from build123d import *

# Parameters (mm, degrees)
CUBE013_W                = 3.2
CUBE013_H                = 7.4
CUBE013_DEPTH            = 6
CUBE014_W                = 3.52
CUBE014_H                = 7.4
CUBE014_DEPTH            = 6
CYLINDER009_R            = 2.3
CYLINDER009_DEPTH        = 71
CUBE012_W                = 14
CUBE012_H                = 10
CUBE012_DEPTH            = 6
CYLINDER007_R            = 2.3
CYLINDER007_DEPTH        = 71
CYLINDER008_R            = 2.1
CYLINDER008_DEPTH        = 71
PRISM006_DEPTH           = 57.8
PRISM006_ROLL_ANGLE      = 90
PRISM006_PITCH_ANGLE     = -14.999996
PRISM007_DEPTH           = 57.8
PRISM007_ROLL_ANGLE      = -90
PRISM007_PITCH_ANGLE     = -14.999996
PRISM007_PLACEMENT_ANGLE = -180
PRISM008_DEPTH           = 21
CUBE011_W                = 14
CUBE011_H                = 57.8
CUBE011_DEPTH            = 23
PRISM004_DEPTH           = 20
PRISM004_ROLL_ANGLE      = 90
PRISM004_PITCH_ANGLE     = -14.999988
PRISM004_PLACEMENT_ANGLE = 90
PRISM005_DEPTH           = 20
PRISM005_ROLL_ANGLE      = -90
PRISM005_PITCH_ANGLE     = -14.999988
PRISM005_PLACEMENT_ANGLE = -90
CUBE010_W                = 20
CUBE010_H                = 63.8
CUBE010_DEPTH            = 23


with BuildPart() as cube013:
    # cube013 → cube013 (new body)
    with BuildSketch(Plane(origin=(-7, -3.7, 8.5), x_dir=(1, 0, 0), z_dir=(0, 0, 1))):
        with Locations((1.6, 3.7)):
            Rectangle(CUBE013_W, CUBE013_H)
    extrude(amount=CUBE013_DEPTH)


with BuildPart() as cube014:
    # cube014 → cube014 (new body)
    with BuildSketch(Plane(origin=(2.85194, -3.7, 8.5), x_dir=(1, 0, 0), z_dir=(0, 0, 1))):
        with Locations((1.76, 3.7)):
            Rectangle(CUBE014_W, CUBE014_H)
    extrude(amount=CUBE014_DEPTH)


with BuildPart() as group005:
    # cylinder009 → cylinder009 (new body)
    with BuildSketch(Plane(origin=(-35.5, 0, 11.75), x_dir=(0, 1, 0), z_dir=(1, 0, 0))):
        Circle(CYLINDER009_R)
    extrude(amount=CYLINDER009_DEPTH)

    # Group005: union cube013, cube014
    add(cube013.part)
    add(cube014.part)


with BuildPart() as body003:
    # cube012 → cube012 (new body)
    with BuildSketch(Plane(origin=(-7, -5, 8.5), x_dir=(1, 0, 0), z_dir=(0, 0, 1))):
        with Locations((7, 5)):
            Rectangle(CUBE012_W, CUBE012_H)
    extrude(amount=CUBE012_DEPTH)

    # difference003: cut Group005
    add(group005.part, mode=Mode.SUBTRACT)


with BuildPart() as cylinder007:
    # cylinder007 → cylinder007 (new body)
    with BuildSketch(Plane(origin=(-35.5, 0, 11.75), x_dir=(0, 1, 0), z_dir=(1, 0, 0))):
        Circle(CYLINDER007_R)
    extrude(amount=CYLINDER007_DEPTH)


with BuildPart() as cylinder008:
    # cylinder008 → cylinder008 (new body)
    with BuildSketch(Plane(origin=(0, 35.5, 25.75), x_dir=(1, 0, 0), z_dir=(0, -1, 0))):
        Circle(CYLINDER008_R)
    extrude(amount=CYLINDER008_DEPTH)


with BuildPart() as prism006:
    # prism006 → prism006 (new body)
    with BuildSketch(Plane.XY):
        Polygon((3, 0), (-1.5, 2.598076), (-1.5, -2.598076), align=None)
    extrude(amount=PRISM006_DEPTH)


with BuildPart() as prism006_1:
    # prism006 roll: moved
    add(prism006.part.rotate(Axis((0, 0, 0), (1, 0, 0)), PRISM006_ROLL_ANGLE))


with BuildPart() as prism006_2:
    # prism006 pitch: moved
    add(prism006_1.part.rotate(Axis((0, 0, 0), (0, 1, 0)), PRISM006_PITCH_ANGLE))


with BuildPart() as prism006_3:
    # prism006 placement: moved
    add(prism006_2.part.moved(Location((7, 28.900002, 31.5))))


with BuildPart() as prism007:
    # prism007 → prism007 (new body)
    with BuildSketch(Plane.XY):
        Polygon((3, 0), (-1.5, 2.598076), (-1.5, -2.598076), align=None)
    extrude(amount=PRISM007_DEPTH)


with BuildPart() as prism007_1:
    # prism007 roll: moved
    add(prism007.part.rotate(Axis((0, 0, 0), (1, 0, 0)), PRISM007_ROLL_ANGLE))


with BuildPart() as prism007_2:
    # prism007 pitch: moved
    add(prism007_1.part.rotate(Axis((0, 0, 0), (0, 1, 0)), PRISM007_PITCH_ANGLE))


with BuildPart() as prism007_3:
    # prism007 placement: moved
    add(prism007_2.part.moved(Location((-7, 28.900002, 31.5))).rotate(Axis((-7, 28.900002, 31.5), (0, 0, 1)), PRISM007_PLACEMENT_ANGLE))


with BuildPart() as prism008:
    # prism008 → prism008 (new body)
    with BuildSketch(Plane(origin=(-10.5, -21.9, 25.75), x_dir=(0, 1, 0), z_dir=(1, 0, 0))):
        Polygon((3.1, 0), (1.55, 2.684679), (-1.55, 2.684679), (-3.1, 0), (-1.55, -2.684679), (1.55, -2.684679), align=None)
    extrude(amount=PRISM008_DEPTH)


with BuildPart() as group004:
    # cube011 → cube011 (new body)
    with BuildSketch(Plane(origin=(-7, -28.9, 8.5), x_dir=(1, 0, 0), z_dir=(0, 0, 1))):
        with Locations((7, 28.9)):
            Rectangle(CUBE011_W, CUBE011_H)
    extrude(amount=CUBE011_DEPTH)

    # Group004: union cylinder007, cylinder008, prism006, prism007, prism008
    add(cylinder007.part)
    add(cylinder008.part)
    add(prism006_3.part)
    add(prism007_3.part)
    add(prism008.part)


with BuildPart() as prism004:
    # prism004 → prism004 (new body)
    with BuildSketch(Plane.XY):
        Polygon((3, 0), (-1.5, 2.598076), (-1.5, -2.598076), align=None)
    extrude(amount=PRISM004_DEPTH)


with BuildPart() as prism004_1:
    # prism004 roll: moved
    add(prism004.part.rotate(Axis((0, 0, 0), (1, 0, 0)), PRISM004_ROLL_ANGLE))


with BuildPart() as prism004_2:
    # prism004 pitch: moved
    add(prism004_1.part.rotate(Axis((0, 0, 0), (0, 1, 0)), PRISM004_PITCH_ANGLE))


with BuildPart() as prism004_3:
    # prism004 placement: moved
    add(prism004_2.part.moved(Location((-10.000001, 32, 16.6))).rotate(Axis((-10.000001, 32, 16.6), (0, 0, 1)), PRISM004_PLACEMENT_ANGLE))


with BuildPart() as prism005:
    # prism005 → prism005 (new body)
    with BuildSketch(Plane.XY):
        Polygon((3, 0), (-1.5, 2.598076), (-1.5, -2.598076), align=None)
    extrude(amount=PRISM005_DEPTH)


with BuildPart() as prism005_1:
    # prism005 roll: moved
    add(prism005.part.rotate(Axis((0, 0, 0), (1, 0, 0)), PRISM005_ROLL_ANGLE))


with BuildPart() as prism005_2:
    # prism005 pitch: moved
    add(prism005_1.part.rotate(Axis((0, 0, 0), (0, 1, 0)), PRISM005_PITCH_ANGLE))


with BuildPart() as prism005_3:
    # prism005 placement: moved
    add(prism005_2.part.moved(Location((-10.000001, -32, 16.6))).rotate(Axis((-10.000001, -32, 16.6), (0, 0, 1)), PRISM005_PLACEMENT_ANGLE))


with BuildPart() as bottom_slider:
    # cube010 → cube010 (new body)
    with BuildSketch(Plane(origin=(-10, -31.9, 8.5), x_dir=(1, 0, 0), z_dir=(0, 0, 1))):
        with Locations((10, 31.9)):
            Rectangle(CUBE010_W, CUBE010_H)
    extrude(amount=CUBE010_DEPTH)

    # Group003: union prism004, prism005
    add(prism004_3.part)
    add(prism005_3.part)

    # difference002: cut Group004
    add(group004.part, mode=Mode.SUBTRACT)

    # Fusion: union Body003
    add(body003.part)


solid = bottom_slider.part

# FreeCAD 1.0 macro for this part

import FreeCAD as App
import Part
import Sketcher

V = App.Vector
Q = App.Units.Quantity

doc = App.newDocument("Part")
body = doc.addObject("PartDesign::Body", "Body")

sketch1 = body.newObject("Sketcher::SketchObject", "Sketch")
sketch1.AttachmentSupport = (doc.getObject("XY_Plane"), [""])
sketch1.MapMode = "FlatFace"
sketch1.AttachmentOffset = App.Placement(V(0, 0, 8.5), App.Rotation())
sketch1.addGeometry(Part.LineSegment(V(-7, 3.7, 0), V(-7, -3.7, 0)), False)
sketch1.addGeometry(Part.LineSegment(V(-7, -3.7, 0), V(-3.8, -3.7, 0)), False)
sketch1.addGeometry(Part.LineSegment(V(-3.8, -3.7, 0), V(-3.8, 3.7, 0)), False)
sketch1.addGeometry(Part.LineSegment(V(-3.8, 3.7, 0), V(-7, 3.7, 0)), False)
sketch1.addConstraint(Sketcher.Constraint("Coincident", 0, 2, 1, 1))
sketch1.addConstraint(Sketcher.Constraint("Coincident", 1, 2, 2, 1))
sketch1.addConstraint(Sketcher.Constraint("Coincident", 2, 2, 3, 1))
sketch1.addConstraint(Sketcher.Constraint("Coincident", 3, 2, 0, 1))
sketch1.addConstraint(Sketcher.Constraint("Vertical", 0))
sketch1.addConstraint(Sketcher.Constraint("Horizontal", 1))
sketch1.addConstraint(Sketcher.Constraint("Vertical", 2))
sketch1.addConstraint(Sketcher.Constraint("Horizontal", 3))
sketch1.addConstraint(Sketcher.Constraint("DistanceX", 1, 1, 1, 2, Q("3.2 mm")))
sketch1.addConstraint(Sketcher.Constraint("DistanceY", 0, 2, 0, 1, Q("7.4 mm")))
sketch1.addConstraint(Sketcher.Constraint("DistanceX", 0, 2, -1, 1, Q("7 mm")))
sketch1.addConstraint(Sketcher.Constraint("DistanceY", 0, 2, -1, 1, Q("3.7 mm")))
pad1 = body.newObject("PartDesign::Pad", "Pad")
pad1.Profile = sketch1
pad1.Length = 6
body2 = doc.addObject("PartDesign::Body", "Body001")

sketch2 = body2.newObject("Sketcher::SketchObject", "Sketch001")
sketch2.AttachmentSupport = (doc.getObject("XY_Plane001"), [""])
sketch2.MapMode = "FlatFace"
sketch2.AttachmentOffset = App.Placement(V(0, 0, 8.5), App.Rotation())
sketch2.addGeometry(Part.LineSegment(V(2.85194, 3.7, 0), V(2.85194, -3.7, 0)), False)
sketch2.addGeometry(Part.LineSegment(V(2.85194, -3.7, 0), V(6.37194, -3.7, 0)), False)
sketch2.addGeometry(Part.LineSegment(V(6.37194, -3.7, 0), V(6.37194, 3.7, 0)), False)
sketch2.addGeometry(Part.LineSegment(V(6.37194, 3.7, 0), V(2.85194, 3.7, 0)), False)
sketch2.addConstraint(Sketcher.Constraint("Coincident", 0, 2, 1, 1))
sketch2.addConstraint(Sketcher.Constraint("Coincident", 1, 2, 2, 1))
sketch2.addConstraint(Sketcher.Constraint("Coincident", 2, 2, 3, 1))
sketch2.addConstraint(Sketcher.Constraint("Coincident", 3, 2, 0, 1))
sketch2.addConstraint(Sketcher.Constraint("Vertical", 0))
sketch2.addConstraint(Sketcher.Constraint("Horizontal", 1))
sketch2.addConstraint(Sketcher.Constraint("Vertical", 2))
sketch2.addConstraint(Sketcher.Constraint("Horizontal", 3))
sketch2.addConstraint(Sketcher.Constraint("DistanceY", 0, 2, 0, 1, Q("7.4 mm")))
sketch2.addConstraint(Sketcher.Constraint("DistanceX", 1, 1, 1, 2, Q("3.52 mm")))
sketch2.addConstraint(Sketcher.Constraint("DistanceY", 0, 2, -1, 1, Q("3.7 mm")))
sketch2.addConstraint(Sketcher.Constraint("DistanceX", -1, 1, 0, 2, Q("2.85194 mm")))
pad2 = body2.newObject("PartDesign::Pad", "Pad001")
pad2.Profile = sketch2
pad2.Length = 6
body3 = doc.addObject("PartDesign::Body", "Body002")

sketch3 = body3.newObject("Sketcher::SketchObject", "Sketch002")
sketch3.AttachmentSupport = (doc.getObject("YZ_Plane002"), [""])
sketch3.MapMode = "FlatFace"
sketch3.AttachmentOffset = App.Placement(V(0, 0, -35.5), App.Rotation())
sketch3.addGeometry(Part.Circle(V(0, 11.75, 0), V(0, 0, 1), 2.3), False)
sketch3.addConstraint(Sketcher.Constraint("PointOnObject", 0, 3, -2))
sketch3.addConstraint(Sketcher.Constraint("Diameter", 0, Q("4.6 mm")))
sketch3.addConstraint(Sketcher.Constraint("DistanceY", -1, 1, 0, 3, Q("11.75 mm")))
pad3 = body3.newObject("PartDesign::Pad", "Pad002")
pad3.Profile = sketch3
pad3.Length = 71
doc.recompute()

boolean = body3.newObject("PartDesign::Boolean", "Boolean")
boolean.Type = "Fuse"
boolean.addObjects([body])
doc.recompute()

boolean2 = body3.newObject("PartDesign::Boolean", "Boolean001")
boolean2.Type = "Fuse"
boolean2.addObjects([body2])
body4 = doc.addObject("PartDesign::Body", "Body003")

sketch4 = body4.newObject("Sketcher::SketchObject", "Sketch003")
sketch4.AttachmentSupport = (doc.getObject("XY_Plane003"), [""])
sketch4.MapMode = "FlatFace"
sketch4.AttachmentOffset = App.Placement(V(0, 0, 8.5), App.Rotation())
sketch4.addGeometry(Part.LineSegment(V(-7, 5, 0), V(-7, -5, 0)), False)
sketch4.addGeometry(Part.LineSegment(V(-7, -5, 0), V(7, -5, 0)), False)
sketch4.addGeometry(Part.LineSegment(V(7, -5, 0), V(7, 5, 0)), False)
sketch4.addGeometry(Part.LineSegment(V(7, 5, 0), V(-7, 5, 0)), False)
sketch4.addConstraint(Sketcher.Constraint("Coincident", 0, 2, 1, 1))
sketch4.addConstraint(Sketcher.Constraint("Coincident", 1, 2, 2, 1))
sketch4.addConstraint(Sketcher.Constraint("Coincident", 2, 2, 3, 1))
sketch4.addConstraint(Sketcher.Constraint("Coincident", 3, 2, 0, 1))
sketch4.addConstraint(Sketcher.Constraint("Vertical", 0))
sketch4.addConstraint(Sketcher.Constraint("Horizontal", 1))
sketch4.addConstraint(Sketcher.Constraint("Vertical", 2))
sketch4.addConstraint(Sketcher.Constraint("Horizontal", 3))
sketch4.addConstraint(Sketcher.Constraint("Symmetric", 0, 2, 2, 2, -1, 1))
sketch4.addConstraint(Sketcher.Constraint("DistanceX", 1, 1, 1, 2, Q("14 mm")))
sketch4.addConstraint(Sketcher.Constraint("DistanceY", 0, 2, 0, 1, Q("10 mm")))
pad4 = body4.newObject("PartDesign::Pad", "Pad003")
pad4.Profile = sketch4
pad4.Length = 6
doc.recompute()

boolean3 = body4.newObject("PartDesign::Boolean", "Boolean002")
boolean3.Type = "Cut"
boolean3.addObjects([body3])
body5 = doc.addObject("PartDesign::Body", "Body004")

sketch5 = body5.newObject("Sketcher::SketchObject", "Sketch004")
sketch5.AttachmentSupport = (doc.getObject("YZ_Plane004"), [""])
sketch5.MapMode = "FlatFace"
sketch5.AttachmentOffset = App.Placement(V(0, 0, -35.5), App.Rotation())
sketch5.addGeometry(Part.Circle(V(0, 11.75, 0), V(0, 0, 1), 2.3), False)
sketch5.addConstraint(Sketcher.Constraint("PointOnObject", 0, 3, -2))
sketch5.addConstraint(Sketcher.Constraint("Diameter", 0, Q("4.6 mm")))
sketch5.addConstraint(Sketcher.Constraint("DistanceY", -1, 1, 0, 3, Q("11.75 mm")))
pad5 = body5.newObject("PartDesign::Pad", "Pad004")
pad5.Profile = sketch5
pad5.Length = 71
body6 = doc.addObject("PartDesign::Body", "Body005")

sketch6 = body6.newObject("Sketcher::SketchObject", "Sketch005")
sketch6.AttachmentSupport = (doc.getObject("XZ_Plane005"), [""])
sketch6.MapMode = "FlatFace"
sketch6.AttachmentOffset = App.Placement(V(0, 0, -35.5), App.Rotation())
sketch6.addGeometry(Part.Circle(V(0, 25.75, 0), V(0, 0, 1), 2.1), False)
sketch6.addConstraint(Sketcher.Constraint("PointOnObject", 0, 3, -2))
sketch6.addConstraint(Sketcher.Constraint("Diameter", 0, Q("4.2 mm")))
sketch6.addConstraint(Sketcher.Constraint("DistanceY", -1, 1, 0, 3, Q("25.75 mm")))
pad6 = body6.newObject("PartDesign::Pad", "Pad005")
pad6.Profile = sketch6
pad6.Length = 71
body7 = doc.addObject("PartDesign::Body", "Body006")

sketch7 = body7.newObject("Sketcher::SketchObject", "Sketch006")
sketch7.AttachmentSupport = (doc.getObject("XY_Plane006"), [""])
sketch7.MapMode = "FlatFace"
sketch7.addGeometry(Part.LineSegment(V(3, 0, 0), V(-1.5, 2.598076, 0)), False)
sketch7.addGeometry(Part.LineSegment(V(-1.5, 2.598076, 0), V(-1.5, -2.598076, 0)), False)
sketch7.addGeometry(Part.LineSegment(V(-1.5, -2.598076, 0), V(3, 0, 0)), False)
sketch7.addConstraint(Sketcher.Constraint("Coincident", 0, 2, 1, 1))
sketch7.addConstraint(Sketcher.Constraint("Coincident", 1, 2, 2, 1))
sketch7.addConstraint(Sketcher.Constraint("Coincident", 2, 2, 0, 1))
sketch7.addConstraint(Sketcher.Constraint("Vertical", 1))
sketch7.addConstraint(Sketcher.Constraint("PointOnObject", 2, 2, -1))
sketch7.addConstraint(Sketcher.Constraint("Equal", 0, 2))
sketch7.addConstraint(Sketcher.Constraint("Angle", 0, Q("150.000002 deg")))
sketch7.addConstraint(Sketcher.Constraint("DistanceX", -1, 1, 2, 2, Q("3 mm")))
sketch7.addConstraint(Sketcher.Constraint("DistanceX", 0, 2, -1, 1, Q("1.5 mm")))
pad7 = body7.newObject("PartDesign::Pad", "Pad006")
pad7.Profile = sketch7
pad7.Length = 57.8
body8 = doc.addObject("PartDesign::Body", "Body007")
doc.recompute()

body7.Placement = App.Placement(V(0, 0, 0), App.Rotation(V(1, 0, 0), 90))
boolean4 = body8.newObject("PartDesign::Boolean", "Boolean003")
boolean4.Type = "Fuse"
boolean4.addObjects([body7])
body9 = doc.addObject("PartDesign::Body", "Body008")
doc.recompute()

body8.Placement = App.Placement(V(0, 0, 0), App.Rotation(V(0, 1, 0), 345.000004))
boolean5 = body9.newObject("PartDesign::Boolean", "Boolean004")
boolean5.Type = "Fuse"
boolean5.addObjects([body8])
body10 = doc.addObject("PartDesign::Body", "Body009")
doc.recompute()

body9.Placement = App.Placement(V(7, 28.900002, 31.5), App.Rotation(V(0, 0, 1), 0))
boolean6 = body10.newObject("PartDesign::Boolean", "Boolean005")
boolean6.Type = "Fuse"
boolean6.addObjects([body9])
body11 = doc.addObject("PartDesign::Body", "Body010")

sketch8 = body11.newObject("Sketcher::SketchObject", "Sketch007")
sketch8.AttachmentSupport = (doc.getObject("XY_Plane010"), [""])
sketch8.MapMode = "FlatFace"
sketch8.addGeometry(Part.LineSegment(V(3, 0, 0), V(-1.5, 2.598076, 0)), False)
sketch8.addGeometry(Part.LineSegment(V(-1.5, 2.598076, 0), V(-1.5, -2.598076, 0)), False)
sketch8.addGeometry(Part.LineSegment(V(-1.5, -2.598076, 0), V(3, 0, 0)), False)
sketch8.addConstraint(Sketcher.Constraint("Coincident", 0, 2, 1, 1))
sketch8.addConstraint(Sketcher.Constraint("Coincident", 1, 2, 2, 1))
sketch8.addConstraint(Sketcher.Constraint("Coincident", 2, 2, 0, 1))
sketch8.addConstraint(Sketcher.Constraint("Vertical", 1))
sketch8.addConstraint(Sketcher.Constraint("PointOnObject", 2, 2, -1))
sketch8.addConstraint(Sketcher.Constraint("Equal", 0, 2))
sketch8.addConstraint(Sketcher.Constraint("Angle", 0, Q("150.000002 deg")))
sketch8.addConstraint(Sketcher.Constraint("DistanceX", -1, 1, 2, 2, Q("3 mm")))
sketch8.addConstraint(Sketcher.Constraint("DistanceX", 0, 2, -1, 1, Q("1.5 mm")))
pad8 = body11.newObject("PartDesign::Pad", "Pad007")
pad8.Profile = sketch8
pad8.Length = 57.8
body12 = doc.addObject("PartDesign::Body", "Body011")
doc.recompute()

body11.Placement = App.Placement(V(0, 0, 0), App.Rotation(V(1, 0, 0), 270))
boolean7 = body12.newObject("PartDesign::Boolean", "Boolean006")
boolean7.Type = "Fuse"
boolean7.addObjects([body11])
body13 = doc.addObject("PartDesign::Body", "Body012")
doc.recompute()

body12.Placement = App.Placement(V(0, 0, 0), App.Rotation(V(0, 1, 0), 345.000004))
boolean8 = body13.newObject("PartDesign::Boolean", "Boolean007")
boolean8.Type = "Fuse"
boolean8.addObjects([body12])
body14 = doc.addObject("PartDesign::Body", "Body013")
doc.recompute()

body13.Placement = App.Placement(V(-7, 28.900002, 31.5), App.Rotation(V(0, 0, 1), 180))
boolean9 = body14.newObject("PartDesign::Boolean", "Boolean008")
boolean9.Type = "Fuse"
boolean9.addObjects([body13])
body15 = doc.addObject("PartDesign::Body", "Body014")

sketch9 = body15.newObject("Sketcher::SketchObject", "Sketch008")
sketch9.AttachmentSupport = (doc.getObject("YZ_Plane014"), [""])
sketch9.MapMode = "FlatFace"
sketch9.AttachmentOffset = App.Placement(V(0, 0, -10.5), App.Rotation())
sketch9.addGeometry(Part.LineSegment(V(-18.8, 25.75, 0), V(-20.35, 28.434679, 0)), False)
sketch9.addGeometry(Part.LineSegment(V(-20.35, 28.434679, 0), V(-23.45, 28.434679, 0)), False)
sketch9.addGeometry(Part.LineSegment(V(-23.45, 28.434679, 0), V(-25, 25.75, 0)), False)
sketch9.addGeometry(Part.LineSegment(V(-25, 25.75, 0), V(-23.45, 23.065321, 0)), False)
sketch9.addGeometry(Part.LineSegment(V(-23.45, 23.065321, 0), V(-20.35, 23.065321, 0)), False)
sketch9.addGeometry(Part.LineSegment(V(-20.35, 23.065321, 0), V(-18.8, 25.75, 0)), False)
sketch9.addConstraint(Sketcher.Constraint("Coincident", 0, 2, 1, 1))
sketch9.addConstraint(Sketcher.Constraint("Coincident", 1, 2, 2, 1))
sketch9.addConstraint(Sketcher.Constraint("Coincident", 2, 2, 3, 1))
sketch9.addConstraint(Sketcher.Constraint("Coincident", 3, 2, 4, 1))
sketch9.addConstraint(Sketcher.Constraint("Coincident", 4, 2, 5, 1))
sketch9.addConstraint(Sketcher.Constraint("Coincident", 5, 2, 0, 1))
sketch9.addConstraint(Sketcher.Constraint("Horizontal", 1))
sketch9.addConstraint(Sketcher.Constraint("Horizontal", 4))
sketch9.addConstraint(Sketcher.Constraint("Parallel", 0, 3))
sketch9.addConstraint(Sketcher.Constraint("Parallel", 2, 5))
sketch9.addConstraint(Sketcher.Constraint("Horizontal", 2, 2, 5, 2))
sketch9.addConstraint(Sketcher.Constraint("Vertical", 1, 2, 3, 2))
sketch9.addConstraint(Sketcher.Constraint("Vertical", 0, 2, 4, 2))
sketch9.addConstraint(Sketcher.Constraint("Angle", 0, Q("119.999998 deg")))
sketch9.addConstraint(Sketcher.Constraint("DistanceX", 1, 2, 1, 1, Q("3.1 mm")))
sketch9.addConstraint(Sketcher.Constraint("DistanceX", 2, 2, -1, 1, Q("25 mm")))
sketch9.addConstraint(Sketcher.Constraint("Distance", 0, Q("3.1 mm")))
sketch9.addConstraint(Sketcher.Constraint("DistanceY", -1, 1, 2, 2, Q("25.75 mm")))
pad9 = body15.newObject("PartDesign::Pad", "Pad008")
pad9.Profile = sketch9
pad9.Length = 21
body16 = doc.addObject("PartDesign::Body", "Body015")

sketch10 = body16.newObject("Sketcher::SketchObject", "Sketch009")
sketch10.AttachmentSupport = (doc.getObject("XY_Plane015"), [""])
sketch10.MapMode = "FlatFace"
sketch10.AttachmentOffset = App.Placement(V(0, 0, 8.5), App.Rotation())
sketch10.addGeometry(Part.LineSegment(V(-7, 28.9, 0), V(-7, -28.9, 0)), False)
sketch10.addGeometry(Part.LineSegment(V(-7, -28.9, 0), V(7, -28.9, 0)), False)
sketch10.addGeometry(Part.LineSegment(V(7, -28.9, 0), V(7, 28.9, 0)), False)
sketch10.addGeometry(Part.LineSegment(V(7, 28.9, 0), V(-7, 28.9, 0)), False)
sketch10.addConstraint(Sketcher.Constraint("Coincident", 0, 2, 1, 1))
sketch10.addConstraint(Sketcher.Constraint("Coincident", 1, 2, 2, 1))
sketch10.addConstraint(Sketcher.Constraint("Coincident", 2, 2, 3, 1))
sketch10.addConstraint(Sketcher.Constraint("Coincident", 3, 2, 0, 1))
sketch10.addConstraint(Sketcher.Constraint("Vertical", 0))
sketch10.addConstraint(Sketcher.Constraint("Horizontal", 1))
sketch10.addConstraint(Sketcher.Constraint("Vertical", 2))
sketch10.addConstraint(Sketcher.Constraint("Horizontal", 3))
sketch10.addConstraint(Sketcher.Constraint("Symmetric", 0, 2, 2, 2, -1, 1))
sketch10.addConstraint(Sketcher.Constraint("DistanceX", 1, 1, 1, 2, Q("14 mm")))
sketch10.addConstraint(Sketcher.Constraint("DistanceY", 0, 2, 0, 1, Q("57.8 mm")))
pad10 = body16.newObject("PartDesign::Pad", "Pad009")
pad10.Profile = sketch10
pad10.Length = 23
doc.recompute()

boolean10 = body16.newObject("PartDesign::Boolean", "Boolean009")
boolean10.Type = "Fuse"
boolean10.addObjects([body5])
doc.recompute()

boolean11 = body16.newObject("PartDesign::Boolean", "Boolean010")
boolean11.Type = "Fuse"
boolean11.addObjects([body6])
doc.recompute()

boolean12 = body16.newObject("PartDesign::Boolean", "Boolean011")
boolean12.Type = "Fuse"
boolean12.addObjects([body10])
doc.recompute()

boolean13 = body16.newObject("PartDesign::Boolean", "Boolean012")
boolean13.Type = "Fuse"
boolean13.addObjects([body14])
doc.recompute()

boolean14 = body16.newObject("PartDesign::Boolean", "Boolean013")
boolean14.Type = "Fuse"
boolean14.addObjects([body15])
body17 = doc.addObject("PartDesign::Body", "Body016")

sketch11 = body17.newObject("Sketcher::SketchObject", "Sketch010")
sketch11.AttachmentSupport = (doc.getObject("XY_Plane016"), [""])
sketch11.MapMode = "FlatFace"
sketch11.addGeometry(Part.LineSegment(V(3, 0, 0), V(-1.5, 2.598076, 0)), False)
sketch11.addGeometry(Part.LineSegment(V(-1.5, 2.598076, 0), V(-1.5, -2.598076, 0)), False)
sketch11.addGeometry(Part.LineSegment(V(-1.5, -2.598076, 0), V(3, 0, 0)), False)
sketch11.addConstraint(Sketcher.Constraint("Coincident", 0, 2, 1, 1))
sketch11.addConstraint(Sketcher.Constraint("Coincident", 1, 2, 2, 1))
sketch11.addConstraint(Sketcher.Constraint("Coincident", 2, 2, 0, 1))
sketch11.addConstraint(Sketcher.Constraint("Vertical", 1))
sketch11.addConstraint(Sketcher.Constraint("PointOnObject", 2, 2, -1))
sketch11.addConstraint(Sketcher.Constraint("Equal", 0, 2))
sketch11.addConstraint(Sketcher.Constraint("Angle", 0, Q("150.000002 deg")))
sketch11.addConstraint(Sketcher.Constraint("DistanceX", -1, 1, 2, 2, Q("3 mm")))
sketch11.addConstraint(Sketcher.Constraint("DistanceX", 0, 2, -1, 1, Q("1.5 mm")))
pad11 = body17.newObject("PartDesign::Pad", "Pad010")
pad11.Profile = sketch11
pad11.Length = 20
body18 = doc.addObject("PartDesign::Body", "Body017")
doc.recompute()

body17.Placement = App.Placement(V(0, 0, 0), App.Rotation(V(1, 0, 0), 90))
boolean15 = body18.newObject("PartDesign::Boolean", "Boolean014")
boolean15.Type = "Fuse"
boolean15.addObjects([body17])
body19 = doc.addObject("PartDesign::Body", "Body018")
doc.recompute()

body18.Placement = App.Placement(V(0, 0, 0), App.Rotation(V(0, 1, 0), 345.000012))
boolean16 = body19.newObject("PartDesign::Boolean", "Boolean015")
boolean16.Type = "Fuse"
boolean16.addObjects([body18])
body20 = doc.addObject("PartDesign::Body", "Body019")
doc.recompute()

body19.Placement = App.Placement(V(-10.000001, 32, 16.6), App.Rotation(V(0, 0, 1), 90))
boolean17 = body20.newObject("PartDesign::Boolean", "Boolean016")
boolean17.Type = "Fuse"
boolean17.addObjects([body19])
body21 = doc.addObject("PartDesign::Body", "Body020")

sketch12 = body21.newObject("Sketcher::SketchObject", "Sketch011")
sketch12.AttachmentSupport = (doc.getObject("XY_Plane020"), [""])
sketch12.MapMode = "FlatFace"
sketch12.addGeometry(Part.LineSegment(V(3, 0, 0), V(-1.5, 2.598076, 0)), False)
sketch12.addGeometry(Part.LineSegment(V(-1.5, 2.598076, 0), V(-1.5, -2.598076, 0)), False)
sketch12.addGeometry(Part.LineSegment(V(-1.5, -2.598076, 0), V(3, 0, 0)), False)
sketch12.addConstraint(Sketcher.Constraint("Coincident", 0, 2, 1, 1))
sketch12.addConstraint(Sketcher.Constraint("Coincident", 1, 2, 2, 1))
sketch12.addConstraint(Sketcher.Constraint("Coincident", 2, 2, 0, 1))
sketch12.addConstraint(Sketcher.Constraint("Vertical", 1))
sketch12.addConstraint(Sketcher.Constraint("PointOnObject", 2, 2, -1))
sketch12.addConstraint(Sketcher.Constraint("Equal", 0, 2))
sketch12.addConstraint(Sketcher.Constraint("Angle", 0, Q("150.000002 deg")))
sketch12.addConstraint(Sketcher.Constraint("DistanceX", -1, 1, 2, 2, Q("3 mm")))
sketch12.addConstraint(Sketcher.Constraint("DistanceX", 0, 2, -1, 1, Q("1.5 mm")))
pad12 = body21.newObject("PartDesign::Pad", "Pad011")
pad12.Profile = sketch12
pad12.Length = 20
body22 = doc.addObject("PartDesign::Body", "Body021")
doc.recompute()

body21.Placement = App.Placement(V(0, 0, 0), App.Rotation(V(1, 0, 0), 270))
boolean18 = body22.newObject("PartDesign::Boolean", "Boolean017")
boolean18.Type = "Fuse"
boolean18.addObjects([body21])
body23 = doc.addObject("PartDesign::Body", "Body022")
doc.recompute()

body22.Placement = App.Placement(V(0, 0, 0), App.Rotation(V(0, 1, 0), 345.000012))
boolean19 = body23.newObject("PartDesign::Boolean", "Boolean018")
boolean19.Type = "Fuse"
boolean19.addObjects([body22])
body24 = doc.addObject("PartDesign::Body", "Body023")
doc.recompute()

body23.Placement = App.Placement(V(-10.000001, -32, 16.6), App.Rotation(V(0, 0, 1), 270))
boolean20 = body24.newObject("PartDesign::Boolean", "Boolean019")
boolean20.Type = "Fuse"
boolean20.addObjects([body23])
body25 = doc.addObject("PartDesign::Body", "Body024")

sketch13 = body25.newObject("Sketcher::SketchObject", "Sketch012")
sketch13.AttachmentSupport = (doc.getObject("XY_Plane024"), [""])
sketch13.MapMode = "FlatFace"
sketch13.AttachmentOffset = App.Placement(V(0, 0, 8.5), App.Rotation())
sketch13.addGeometry(Part.LineSegment(V(-10, 31.9, 0), V(-10, -31.9, 0)), False)
sketch13.addGeometry(Part.LineSegment(V(-10, -31.9, 0), V(10, -31.9, 0)), False)
sketch13.addGeometry(Part.LineSegment(V(10, -31.9, 0), V(10, 31.9, 0)), False)
sketch13.addGeometry(Part.LineSegment(V(10, 31.9, 0), V(-10, 31.9, 0)), False)
sketch13.addConstraint(Sketcher.Constraint("Coincident", 0, 2, 1, 1))
sketch13.addConstraint(Sketcher.Constraint("Coincident", 1, 2, 2, 1))
sketch13.addConstraint(Sketcher.Constraint("Coincident", 2, 2, 3, 1))
sketch13.addConstraint(Sketcher.Constraint("Coincident", 3, 2, 0, 1))
sketch13.addConstraint(Sketcher.Constraint("Vertical", 0))
sketch13.addConstraint(Sketcher.Constraint("Horizontal", 1))
sketch13.addConstraint(Sketcher.Constraint("Vertical", 2))
sketch13.addConstraint(Sketcher.Constraint("Horizontal", 3))
sketch13.addConstraint(Sketcher.Constraint("Symmetric", 0, 2, 2, 2, -1, 1))
sketch13.addConstraint(Sketcher.Constraint("DistanceX", 1, 1, 1, 2, Q("20 mm")))
sketch13.addConstraint(Sketcher.Constraint("DistanceY", 0, 2, 0, 1, Q("63.8 mm")))
pad13 = body25.newObject("PartDesign::Pad", "Pad012")
pad13.Profile = sketch13
pad13.Length = 23
doc.recompute()

boolean21 = body25.newObject("PartDesign::Boolean", "Boolean020")
boolean21.Type = "Fuse"
boolean21.addObjects([body20])
doc.recompute()

boolean22 = body25.newObject("PartDesign::Boolean", "Boolean021")
boolean22.Type = "Fuse"
boolean22.addObjects([body24])
doc.recompute()

boolean23 = body25.newObject("PartDesign::Boolean", "Boolean022")
boolean23.Type = "Cut"
boolean23.addObjects([body16])
doc.recompute()

boolean24 = body25.newObject("PartDesign::Boolean", "Boolean023")
boolean24.Type = "Fuse"
boolean24.addObjects([body4])

doc.recompute()
